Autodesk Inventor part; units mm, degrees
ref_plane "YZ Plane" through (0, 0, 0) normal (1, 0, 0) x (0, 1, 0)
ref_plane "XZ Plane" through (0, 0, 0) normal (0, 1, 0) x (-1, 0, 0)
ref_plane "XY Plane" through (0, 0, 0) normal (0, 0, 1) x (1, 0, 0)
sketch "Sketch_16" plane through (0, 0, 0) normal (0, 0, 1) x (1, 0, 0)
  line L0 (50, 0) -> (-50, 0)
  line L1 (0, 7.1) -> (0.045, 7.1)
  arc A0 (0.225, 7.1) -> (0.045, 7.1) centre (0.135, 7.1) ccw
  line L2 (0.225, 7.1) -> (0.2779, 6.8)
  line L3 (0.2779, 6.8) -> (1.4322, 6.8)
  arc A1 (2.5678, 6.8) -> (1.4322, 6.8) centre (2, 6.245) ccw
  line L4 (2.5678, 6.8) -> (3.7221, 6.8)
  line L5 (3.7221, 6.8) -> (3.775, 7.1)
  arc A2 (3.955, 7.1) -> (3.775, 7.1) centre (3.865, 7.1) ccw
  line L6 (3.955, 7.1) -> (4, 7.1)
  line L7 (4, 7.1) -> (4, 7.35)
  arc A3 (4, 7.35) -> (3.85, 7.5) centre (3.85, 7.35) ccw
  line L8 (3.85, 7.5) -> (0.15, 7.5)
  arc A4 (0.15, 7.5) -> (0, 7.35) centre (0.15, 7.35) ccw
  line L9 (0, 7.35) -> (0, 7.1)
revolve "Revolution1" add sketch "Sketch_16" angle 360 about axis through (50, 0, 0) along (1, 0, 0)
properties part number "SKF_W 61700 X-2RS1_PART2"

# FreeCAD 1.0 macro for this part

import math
import FreeCAD as App
import Part
import Sketcher
Q = App.Units.Quantity

doc = App.newDocument("Part")
body = doc.addObject("PartDesign::Body", "Body")

# Sketch on XY plane
sketch1 = body.newObject("Sketcher::SketchObject", "Sketch")
sketch1.AttachmentSupport = (doc.getObject("XY_Plane"), [""])
sketch1.MapMode = "FlatFace"
sketch1.addGeometry([
    Part.LineSegment(App.Vector(0, 7.35, 0), App.Vector(0, 7.1, 0)),  # 0
    Part.LineSegment(App.Vector(0, 7.1, 0), App.Vector(0.045, 7.1, 0)),  # 1
    Part.ArcOfCircle(Part.Circle(App.Vector(0.135, 7.1, 0), App.Vector(0, 0, 1), 0.09), math.radians(0), math.radians(180)),  # 2
    Part.LineSegment(App.Vector(0.225, 7.1, 0), App.Vector(0.278, 6.8, 0)),  # 3
    Part.LineSegment(App.Vector(0.278, 6.8, 0), App.Vector(1.432, 6.8, 0)),  # 4
    Part.ArcOfCircle(Part.Circle(App.Vector(2, 6.245, 0), App.Vector(0, 0, 1), 0.794), math.radians(44), math.radians(136)),  # 5
    Part.LineSegment(App.Vector(2.568, 6.8, 0), App.Vector(3.722, 6.8, 0)),  # 6
    Part.LineSegment(App.Vector(3.722, 6.8, 0), App.Vector(3.775, 7.1, 0)),  # 7
    Part.ArcOfCircle(Part.Circle(App.Vector(3.865, 7.1, 0), App.Vector(0, 0, 1), 0.09), math.radians(0), math.radians(180)),  # 8
    Part.LineSegment(App.Vector(3.955, 7.1, 0), App.Vector(4, 7.1, 0)),  # 9
    Part.LineSegment(App.Vector(4, 7.1, 0), App.Vector(4, 7.35, 0)),  # 10
    Part.ArcOfCircle(Part.Circle(App.Vector(3.85, 7.35, 0), App.Vector(0, 0, 1), 0.15), math.radians(0), math.radians(90)),  # 11
    Part.LineSegment(App.Vector(3.85, 7.5, 0), App.Vector(0.15, 7.5, 0)),  # 12
    Part.ArcOfCircle(Part.Circle(App.Vector(0.15, 7.35, 0), App.Vector(0, 0, 1), 0.15), math.radians(90), math.radians(180)),  # 13
], False)
sketch1.addConstraint([
    Sketcher.Constraint("Coincident", 0, 2, 1, 1),
    Sketcher.Constraint("Coincident", 1, 2, 2, 2),
    Sketcher.Constraint("Coincident", 2, 1, 3, 1),
    Sketcher.Constraint("Coincident", 3, 2, 4, 1),
    Sketcher.Constraint("Coincident", 4, 2, 5, 2),
    Sketcher.Constraint("Coincident", 5, 1, 6, 1),
    Sketcher.Constraint("Coincident", 6, 2, 7, 1),
    Sketcher.Constraint("Coincident", 7, 2, 8, 2),
    Sketcher.Constraint("Coincident", 8, 1, 9, 1),
    Sketcher.Constraint("Coincident", 9, 2, 10, 1),
    Sketcher.Constraint("Tangent", 10, 2, 11, 1),
    Sketcher.Constraint("Tangent", 11, 2, 12, 1),
    Sketcher.Constraint("Tangent", 12, 2, 13, 1),
    Sketcher.Constraint("Tangent", 13, 2, 0, 1),
    Sketcher.Constraint("Vertical", 0),
    Sketcher.Constraint("Horizontal", 1),
    Sketcher.Constraint("Horizontal", 4),
    Sketcher.Constraint("Horizontal", 6),
    Sketcher.Constraint("Horizontal", 9),
    Sketcher.Constraint("Vertical", 10),
    Sketcher.Constraint("Horizontal", 12),
    Sketcher.Constraint("Equal", 2, 8),
    Sketcher.Constraint("Equal", 11, 13),
    Sketcher.Constraint("PointOnObject", 0, 2, -2),
    Sketcher.Constraint("Horizontal", 2, 3, 8, 3),
    Sketcher.Constraint("Horizontal", 8, 3, 0, 2),
    Sketcher.Constraint("Horizontal", 1, 2, 2, 1),
    Sketcher.Constraint("Horizontal", 4, 2, 5, 1),
    Sketcher.Constraint("Horizontal", 2, 1, 7, 2),
    Sketcher.Constraint("Horizontal", 7, 2, 8, 1),
    Sketcher.Constraint("Equal", 4, 6),
    Sketcher.Constraint("Equal", 1, 9),
    Sketcher.Constraint("Equal", 3, 7),
    Sketcher.Constraint("Angle", 3, Q("-79.9996 deg")),
    Sketcher.Constraint("Radius", 2, Q("0.09 mm")),
    Sketcher.Constraint("Radius", 11, Q("0.15 mm")),
    Sketcher.Constraint("DistanceX", 12, 2, 12, 1, Q("3.7 mm")),
    Sketcher.Constraint("Radius", 5, Q("0.794 mm")),
    Sketcher.Constraint("DistanceY", 0, 2, 0, 1, Q("0.25 mm")),
    Sketcher.Constraint("DistanceY", -1, 1, 2, 3, Q("7.1 mm")),
    Sketcher.Constraint("DistanceY", -1, 1, 3, 2, Q("6.8 mm")),
    Sketcher.Constraint("DistanceX", 1, 1, 1, 2, Q("0.045 mm")),
    Sketcher.Constraint("DistanceX", 3, 2, 5, 1, Q("2.29 mm")),
])
revolution = body.newObject("PartDesign::Revolution", "Revolution")
revolution.Profile = sketch1
revolution.ReferenceAxis = (sketch1, ["H_Axis"])
revolution.Angle = 360

doc.recompute()
